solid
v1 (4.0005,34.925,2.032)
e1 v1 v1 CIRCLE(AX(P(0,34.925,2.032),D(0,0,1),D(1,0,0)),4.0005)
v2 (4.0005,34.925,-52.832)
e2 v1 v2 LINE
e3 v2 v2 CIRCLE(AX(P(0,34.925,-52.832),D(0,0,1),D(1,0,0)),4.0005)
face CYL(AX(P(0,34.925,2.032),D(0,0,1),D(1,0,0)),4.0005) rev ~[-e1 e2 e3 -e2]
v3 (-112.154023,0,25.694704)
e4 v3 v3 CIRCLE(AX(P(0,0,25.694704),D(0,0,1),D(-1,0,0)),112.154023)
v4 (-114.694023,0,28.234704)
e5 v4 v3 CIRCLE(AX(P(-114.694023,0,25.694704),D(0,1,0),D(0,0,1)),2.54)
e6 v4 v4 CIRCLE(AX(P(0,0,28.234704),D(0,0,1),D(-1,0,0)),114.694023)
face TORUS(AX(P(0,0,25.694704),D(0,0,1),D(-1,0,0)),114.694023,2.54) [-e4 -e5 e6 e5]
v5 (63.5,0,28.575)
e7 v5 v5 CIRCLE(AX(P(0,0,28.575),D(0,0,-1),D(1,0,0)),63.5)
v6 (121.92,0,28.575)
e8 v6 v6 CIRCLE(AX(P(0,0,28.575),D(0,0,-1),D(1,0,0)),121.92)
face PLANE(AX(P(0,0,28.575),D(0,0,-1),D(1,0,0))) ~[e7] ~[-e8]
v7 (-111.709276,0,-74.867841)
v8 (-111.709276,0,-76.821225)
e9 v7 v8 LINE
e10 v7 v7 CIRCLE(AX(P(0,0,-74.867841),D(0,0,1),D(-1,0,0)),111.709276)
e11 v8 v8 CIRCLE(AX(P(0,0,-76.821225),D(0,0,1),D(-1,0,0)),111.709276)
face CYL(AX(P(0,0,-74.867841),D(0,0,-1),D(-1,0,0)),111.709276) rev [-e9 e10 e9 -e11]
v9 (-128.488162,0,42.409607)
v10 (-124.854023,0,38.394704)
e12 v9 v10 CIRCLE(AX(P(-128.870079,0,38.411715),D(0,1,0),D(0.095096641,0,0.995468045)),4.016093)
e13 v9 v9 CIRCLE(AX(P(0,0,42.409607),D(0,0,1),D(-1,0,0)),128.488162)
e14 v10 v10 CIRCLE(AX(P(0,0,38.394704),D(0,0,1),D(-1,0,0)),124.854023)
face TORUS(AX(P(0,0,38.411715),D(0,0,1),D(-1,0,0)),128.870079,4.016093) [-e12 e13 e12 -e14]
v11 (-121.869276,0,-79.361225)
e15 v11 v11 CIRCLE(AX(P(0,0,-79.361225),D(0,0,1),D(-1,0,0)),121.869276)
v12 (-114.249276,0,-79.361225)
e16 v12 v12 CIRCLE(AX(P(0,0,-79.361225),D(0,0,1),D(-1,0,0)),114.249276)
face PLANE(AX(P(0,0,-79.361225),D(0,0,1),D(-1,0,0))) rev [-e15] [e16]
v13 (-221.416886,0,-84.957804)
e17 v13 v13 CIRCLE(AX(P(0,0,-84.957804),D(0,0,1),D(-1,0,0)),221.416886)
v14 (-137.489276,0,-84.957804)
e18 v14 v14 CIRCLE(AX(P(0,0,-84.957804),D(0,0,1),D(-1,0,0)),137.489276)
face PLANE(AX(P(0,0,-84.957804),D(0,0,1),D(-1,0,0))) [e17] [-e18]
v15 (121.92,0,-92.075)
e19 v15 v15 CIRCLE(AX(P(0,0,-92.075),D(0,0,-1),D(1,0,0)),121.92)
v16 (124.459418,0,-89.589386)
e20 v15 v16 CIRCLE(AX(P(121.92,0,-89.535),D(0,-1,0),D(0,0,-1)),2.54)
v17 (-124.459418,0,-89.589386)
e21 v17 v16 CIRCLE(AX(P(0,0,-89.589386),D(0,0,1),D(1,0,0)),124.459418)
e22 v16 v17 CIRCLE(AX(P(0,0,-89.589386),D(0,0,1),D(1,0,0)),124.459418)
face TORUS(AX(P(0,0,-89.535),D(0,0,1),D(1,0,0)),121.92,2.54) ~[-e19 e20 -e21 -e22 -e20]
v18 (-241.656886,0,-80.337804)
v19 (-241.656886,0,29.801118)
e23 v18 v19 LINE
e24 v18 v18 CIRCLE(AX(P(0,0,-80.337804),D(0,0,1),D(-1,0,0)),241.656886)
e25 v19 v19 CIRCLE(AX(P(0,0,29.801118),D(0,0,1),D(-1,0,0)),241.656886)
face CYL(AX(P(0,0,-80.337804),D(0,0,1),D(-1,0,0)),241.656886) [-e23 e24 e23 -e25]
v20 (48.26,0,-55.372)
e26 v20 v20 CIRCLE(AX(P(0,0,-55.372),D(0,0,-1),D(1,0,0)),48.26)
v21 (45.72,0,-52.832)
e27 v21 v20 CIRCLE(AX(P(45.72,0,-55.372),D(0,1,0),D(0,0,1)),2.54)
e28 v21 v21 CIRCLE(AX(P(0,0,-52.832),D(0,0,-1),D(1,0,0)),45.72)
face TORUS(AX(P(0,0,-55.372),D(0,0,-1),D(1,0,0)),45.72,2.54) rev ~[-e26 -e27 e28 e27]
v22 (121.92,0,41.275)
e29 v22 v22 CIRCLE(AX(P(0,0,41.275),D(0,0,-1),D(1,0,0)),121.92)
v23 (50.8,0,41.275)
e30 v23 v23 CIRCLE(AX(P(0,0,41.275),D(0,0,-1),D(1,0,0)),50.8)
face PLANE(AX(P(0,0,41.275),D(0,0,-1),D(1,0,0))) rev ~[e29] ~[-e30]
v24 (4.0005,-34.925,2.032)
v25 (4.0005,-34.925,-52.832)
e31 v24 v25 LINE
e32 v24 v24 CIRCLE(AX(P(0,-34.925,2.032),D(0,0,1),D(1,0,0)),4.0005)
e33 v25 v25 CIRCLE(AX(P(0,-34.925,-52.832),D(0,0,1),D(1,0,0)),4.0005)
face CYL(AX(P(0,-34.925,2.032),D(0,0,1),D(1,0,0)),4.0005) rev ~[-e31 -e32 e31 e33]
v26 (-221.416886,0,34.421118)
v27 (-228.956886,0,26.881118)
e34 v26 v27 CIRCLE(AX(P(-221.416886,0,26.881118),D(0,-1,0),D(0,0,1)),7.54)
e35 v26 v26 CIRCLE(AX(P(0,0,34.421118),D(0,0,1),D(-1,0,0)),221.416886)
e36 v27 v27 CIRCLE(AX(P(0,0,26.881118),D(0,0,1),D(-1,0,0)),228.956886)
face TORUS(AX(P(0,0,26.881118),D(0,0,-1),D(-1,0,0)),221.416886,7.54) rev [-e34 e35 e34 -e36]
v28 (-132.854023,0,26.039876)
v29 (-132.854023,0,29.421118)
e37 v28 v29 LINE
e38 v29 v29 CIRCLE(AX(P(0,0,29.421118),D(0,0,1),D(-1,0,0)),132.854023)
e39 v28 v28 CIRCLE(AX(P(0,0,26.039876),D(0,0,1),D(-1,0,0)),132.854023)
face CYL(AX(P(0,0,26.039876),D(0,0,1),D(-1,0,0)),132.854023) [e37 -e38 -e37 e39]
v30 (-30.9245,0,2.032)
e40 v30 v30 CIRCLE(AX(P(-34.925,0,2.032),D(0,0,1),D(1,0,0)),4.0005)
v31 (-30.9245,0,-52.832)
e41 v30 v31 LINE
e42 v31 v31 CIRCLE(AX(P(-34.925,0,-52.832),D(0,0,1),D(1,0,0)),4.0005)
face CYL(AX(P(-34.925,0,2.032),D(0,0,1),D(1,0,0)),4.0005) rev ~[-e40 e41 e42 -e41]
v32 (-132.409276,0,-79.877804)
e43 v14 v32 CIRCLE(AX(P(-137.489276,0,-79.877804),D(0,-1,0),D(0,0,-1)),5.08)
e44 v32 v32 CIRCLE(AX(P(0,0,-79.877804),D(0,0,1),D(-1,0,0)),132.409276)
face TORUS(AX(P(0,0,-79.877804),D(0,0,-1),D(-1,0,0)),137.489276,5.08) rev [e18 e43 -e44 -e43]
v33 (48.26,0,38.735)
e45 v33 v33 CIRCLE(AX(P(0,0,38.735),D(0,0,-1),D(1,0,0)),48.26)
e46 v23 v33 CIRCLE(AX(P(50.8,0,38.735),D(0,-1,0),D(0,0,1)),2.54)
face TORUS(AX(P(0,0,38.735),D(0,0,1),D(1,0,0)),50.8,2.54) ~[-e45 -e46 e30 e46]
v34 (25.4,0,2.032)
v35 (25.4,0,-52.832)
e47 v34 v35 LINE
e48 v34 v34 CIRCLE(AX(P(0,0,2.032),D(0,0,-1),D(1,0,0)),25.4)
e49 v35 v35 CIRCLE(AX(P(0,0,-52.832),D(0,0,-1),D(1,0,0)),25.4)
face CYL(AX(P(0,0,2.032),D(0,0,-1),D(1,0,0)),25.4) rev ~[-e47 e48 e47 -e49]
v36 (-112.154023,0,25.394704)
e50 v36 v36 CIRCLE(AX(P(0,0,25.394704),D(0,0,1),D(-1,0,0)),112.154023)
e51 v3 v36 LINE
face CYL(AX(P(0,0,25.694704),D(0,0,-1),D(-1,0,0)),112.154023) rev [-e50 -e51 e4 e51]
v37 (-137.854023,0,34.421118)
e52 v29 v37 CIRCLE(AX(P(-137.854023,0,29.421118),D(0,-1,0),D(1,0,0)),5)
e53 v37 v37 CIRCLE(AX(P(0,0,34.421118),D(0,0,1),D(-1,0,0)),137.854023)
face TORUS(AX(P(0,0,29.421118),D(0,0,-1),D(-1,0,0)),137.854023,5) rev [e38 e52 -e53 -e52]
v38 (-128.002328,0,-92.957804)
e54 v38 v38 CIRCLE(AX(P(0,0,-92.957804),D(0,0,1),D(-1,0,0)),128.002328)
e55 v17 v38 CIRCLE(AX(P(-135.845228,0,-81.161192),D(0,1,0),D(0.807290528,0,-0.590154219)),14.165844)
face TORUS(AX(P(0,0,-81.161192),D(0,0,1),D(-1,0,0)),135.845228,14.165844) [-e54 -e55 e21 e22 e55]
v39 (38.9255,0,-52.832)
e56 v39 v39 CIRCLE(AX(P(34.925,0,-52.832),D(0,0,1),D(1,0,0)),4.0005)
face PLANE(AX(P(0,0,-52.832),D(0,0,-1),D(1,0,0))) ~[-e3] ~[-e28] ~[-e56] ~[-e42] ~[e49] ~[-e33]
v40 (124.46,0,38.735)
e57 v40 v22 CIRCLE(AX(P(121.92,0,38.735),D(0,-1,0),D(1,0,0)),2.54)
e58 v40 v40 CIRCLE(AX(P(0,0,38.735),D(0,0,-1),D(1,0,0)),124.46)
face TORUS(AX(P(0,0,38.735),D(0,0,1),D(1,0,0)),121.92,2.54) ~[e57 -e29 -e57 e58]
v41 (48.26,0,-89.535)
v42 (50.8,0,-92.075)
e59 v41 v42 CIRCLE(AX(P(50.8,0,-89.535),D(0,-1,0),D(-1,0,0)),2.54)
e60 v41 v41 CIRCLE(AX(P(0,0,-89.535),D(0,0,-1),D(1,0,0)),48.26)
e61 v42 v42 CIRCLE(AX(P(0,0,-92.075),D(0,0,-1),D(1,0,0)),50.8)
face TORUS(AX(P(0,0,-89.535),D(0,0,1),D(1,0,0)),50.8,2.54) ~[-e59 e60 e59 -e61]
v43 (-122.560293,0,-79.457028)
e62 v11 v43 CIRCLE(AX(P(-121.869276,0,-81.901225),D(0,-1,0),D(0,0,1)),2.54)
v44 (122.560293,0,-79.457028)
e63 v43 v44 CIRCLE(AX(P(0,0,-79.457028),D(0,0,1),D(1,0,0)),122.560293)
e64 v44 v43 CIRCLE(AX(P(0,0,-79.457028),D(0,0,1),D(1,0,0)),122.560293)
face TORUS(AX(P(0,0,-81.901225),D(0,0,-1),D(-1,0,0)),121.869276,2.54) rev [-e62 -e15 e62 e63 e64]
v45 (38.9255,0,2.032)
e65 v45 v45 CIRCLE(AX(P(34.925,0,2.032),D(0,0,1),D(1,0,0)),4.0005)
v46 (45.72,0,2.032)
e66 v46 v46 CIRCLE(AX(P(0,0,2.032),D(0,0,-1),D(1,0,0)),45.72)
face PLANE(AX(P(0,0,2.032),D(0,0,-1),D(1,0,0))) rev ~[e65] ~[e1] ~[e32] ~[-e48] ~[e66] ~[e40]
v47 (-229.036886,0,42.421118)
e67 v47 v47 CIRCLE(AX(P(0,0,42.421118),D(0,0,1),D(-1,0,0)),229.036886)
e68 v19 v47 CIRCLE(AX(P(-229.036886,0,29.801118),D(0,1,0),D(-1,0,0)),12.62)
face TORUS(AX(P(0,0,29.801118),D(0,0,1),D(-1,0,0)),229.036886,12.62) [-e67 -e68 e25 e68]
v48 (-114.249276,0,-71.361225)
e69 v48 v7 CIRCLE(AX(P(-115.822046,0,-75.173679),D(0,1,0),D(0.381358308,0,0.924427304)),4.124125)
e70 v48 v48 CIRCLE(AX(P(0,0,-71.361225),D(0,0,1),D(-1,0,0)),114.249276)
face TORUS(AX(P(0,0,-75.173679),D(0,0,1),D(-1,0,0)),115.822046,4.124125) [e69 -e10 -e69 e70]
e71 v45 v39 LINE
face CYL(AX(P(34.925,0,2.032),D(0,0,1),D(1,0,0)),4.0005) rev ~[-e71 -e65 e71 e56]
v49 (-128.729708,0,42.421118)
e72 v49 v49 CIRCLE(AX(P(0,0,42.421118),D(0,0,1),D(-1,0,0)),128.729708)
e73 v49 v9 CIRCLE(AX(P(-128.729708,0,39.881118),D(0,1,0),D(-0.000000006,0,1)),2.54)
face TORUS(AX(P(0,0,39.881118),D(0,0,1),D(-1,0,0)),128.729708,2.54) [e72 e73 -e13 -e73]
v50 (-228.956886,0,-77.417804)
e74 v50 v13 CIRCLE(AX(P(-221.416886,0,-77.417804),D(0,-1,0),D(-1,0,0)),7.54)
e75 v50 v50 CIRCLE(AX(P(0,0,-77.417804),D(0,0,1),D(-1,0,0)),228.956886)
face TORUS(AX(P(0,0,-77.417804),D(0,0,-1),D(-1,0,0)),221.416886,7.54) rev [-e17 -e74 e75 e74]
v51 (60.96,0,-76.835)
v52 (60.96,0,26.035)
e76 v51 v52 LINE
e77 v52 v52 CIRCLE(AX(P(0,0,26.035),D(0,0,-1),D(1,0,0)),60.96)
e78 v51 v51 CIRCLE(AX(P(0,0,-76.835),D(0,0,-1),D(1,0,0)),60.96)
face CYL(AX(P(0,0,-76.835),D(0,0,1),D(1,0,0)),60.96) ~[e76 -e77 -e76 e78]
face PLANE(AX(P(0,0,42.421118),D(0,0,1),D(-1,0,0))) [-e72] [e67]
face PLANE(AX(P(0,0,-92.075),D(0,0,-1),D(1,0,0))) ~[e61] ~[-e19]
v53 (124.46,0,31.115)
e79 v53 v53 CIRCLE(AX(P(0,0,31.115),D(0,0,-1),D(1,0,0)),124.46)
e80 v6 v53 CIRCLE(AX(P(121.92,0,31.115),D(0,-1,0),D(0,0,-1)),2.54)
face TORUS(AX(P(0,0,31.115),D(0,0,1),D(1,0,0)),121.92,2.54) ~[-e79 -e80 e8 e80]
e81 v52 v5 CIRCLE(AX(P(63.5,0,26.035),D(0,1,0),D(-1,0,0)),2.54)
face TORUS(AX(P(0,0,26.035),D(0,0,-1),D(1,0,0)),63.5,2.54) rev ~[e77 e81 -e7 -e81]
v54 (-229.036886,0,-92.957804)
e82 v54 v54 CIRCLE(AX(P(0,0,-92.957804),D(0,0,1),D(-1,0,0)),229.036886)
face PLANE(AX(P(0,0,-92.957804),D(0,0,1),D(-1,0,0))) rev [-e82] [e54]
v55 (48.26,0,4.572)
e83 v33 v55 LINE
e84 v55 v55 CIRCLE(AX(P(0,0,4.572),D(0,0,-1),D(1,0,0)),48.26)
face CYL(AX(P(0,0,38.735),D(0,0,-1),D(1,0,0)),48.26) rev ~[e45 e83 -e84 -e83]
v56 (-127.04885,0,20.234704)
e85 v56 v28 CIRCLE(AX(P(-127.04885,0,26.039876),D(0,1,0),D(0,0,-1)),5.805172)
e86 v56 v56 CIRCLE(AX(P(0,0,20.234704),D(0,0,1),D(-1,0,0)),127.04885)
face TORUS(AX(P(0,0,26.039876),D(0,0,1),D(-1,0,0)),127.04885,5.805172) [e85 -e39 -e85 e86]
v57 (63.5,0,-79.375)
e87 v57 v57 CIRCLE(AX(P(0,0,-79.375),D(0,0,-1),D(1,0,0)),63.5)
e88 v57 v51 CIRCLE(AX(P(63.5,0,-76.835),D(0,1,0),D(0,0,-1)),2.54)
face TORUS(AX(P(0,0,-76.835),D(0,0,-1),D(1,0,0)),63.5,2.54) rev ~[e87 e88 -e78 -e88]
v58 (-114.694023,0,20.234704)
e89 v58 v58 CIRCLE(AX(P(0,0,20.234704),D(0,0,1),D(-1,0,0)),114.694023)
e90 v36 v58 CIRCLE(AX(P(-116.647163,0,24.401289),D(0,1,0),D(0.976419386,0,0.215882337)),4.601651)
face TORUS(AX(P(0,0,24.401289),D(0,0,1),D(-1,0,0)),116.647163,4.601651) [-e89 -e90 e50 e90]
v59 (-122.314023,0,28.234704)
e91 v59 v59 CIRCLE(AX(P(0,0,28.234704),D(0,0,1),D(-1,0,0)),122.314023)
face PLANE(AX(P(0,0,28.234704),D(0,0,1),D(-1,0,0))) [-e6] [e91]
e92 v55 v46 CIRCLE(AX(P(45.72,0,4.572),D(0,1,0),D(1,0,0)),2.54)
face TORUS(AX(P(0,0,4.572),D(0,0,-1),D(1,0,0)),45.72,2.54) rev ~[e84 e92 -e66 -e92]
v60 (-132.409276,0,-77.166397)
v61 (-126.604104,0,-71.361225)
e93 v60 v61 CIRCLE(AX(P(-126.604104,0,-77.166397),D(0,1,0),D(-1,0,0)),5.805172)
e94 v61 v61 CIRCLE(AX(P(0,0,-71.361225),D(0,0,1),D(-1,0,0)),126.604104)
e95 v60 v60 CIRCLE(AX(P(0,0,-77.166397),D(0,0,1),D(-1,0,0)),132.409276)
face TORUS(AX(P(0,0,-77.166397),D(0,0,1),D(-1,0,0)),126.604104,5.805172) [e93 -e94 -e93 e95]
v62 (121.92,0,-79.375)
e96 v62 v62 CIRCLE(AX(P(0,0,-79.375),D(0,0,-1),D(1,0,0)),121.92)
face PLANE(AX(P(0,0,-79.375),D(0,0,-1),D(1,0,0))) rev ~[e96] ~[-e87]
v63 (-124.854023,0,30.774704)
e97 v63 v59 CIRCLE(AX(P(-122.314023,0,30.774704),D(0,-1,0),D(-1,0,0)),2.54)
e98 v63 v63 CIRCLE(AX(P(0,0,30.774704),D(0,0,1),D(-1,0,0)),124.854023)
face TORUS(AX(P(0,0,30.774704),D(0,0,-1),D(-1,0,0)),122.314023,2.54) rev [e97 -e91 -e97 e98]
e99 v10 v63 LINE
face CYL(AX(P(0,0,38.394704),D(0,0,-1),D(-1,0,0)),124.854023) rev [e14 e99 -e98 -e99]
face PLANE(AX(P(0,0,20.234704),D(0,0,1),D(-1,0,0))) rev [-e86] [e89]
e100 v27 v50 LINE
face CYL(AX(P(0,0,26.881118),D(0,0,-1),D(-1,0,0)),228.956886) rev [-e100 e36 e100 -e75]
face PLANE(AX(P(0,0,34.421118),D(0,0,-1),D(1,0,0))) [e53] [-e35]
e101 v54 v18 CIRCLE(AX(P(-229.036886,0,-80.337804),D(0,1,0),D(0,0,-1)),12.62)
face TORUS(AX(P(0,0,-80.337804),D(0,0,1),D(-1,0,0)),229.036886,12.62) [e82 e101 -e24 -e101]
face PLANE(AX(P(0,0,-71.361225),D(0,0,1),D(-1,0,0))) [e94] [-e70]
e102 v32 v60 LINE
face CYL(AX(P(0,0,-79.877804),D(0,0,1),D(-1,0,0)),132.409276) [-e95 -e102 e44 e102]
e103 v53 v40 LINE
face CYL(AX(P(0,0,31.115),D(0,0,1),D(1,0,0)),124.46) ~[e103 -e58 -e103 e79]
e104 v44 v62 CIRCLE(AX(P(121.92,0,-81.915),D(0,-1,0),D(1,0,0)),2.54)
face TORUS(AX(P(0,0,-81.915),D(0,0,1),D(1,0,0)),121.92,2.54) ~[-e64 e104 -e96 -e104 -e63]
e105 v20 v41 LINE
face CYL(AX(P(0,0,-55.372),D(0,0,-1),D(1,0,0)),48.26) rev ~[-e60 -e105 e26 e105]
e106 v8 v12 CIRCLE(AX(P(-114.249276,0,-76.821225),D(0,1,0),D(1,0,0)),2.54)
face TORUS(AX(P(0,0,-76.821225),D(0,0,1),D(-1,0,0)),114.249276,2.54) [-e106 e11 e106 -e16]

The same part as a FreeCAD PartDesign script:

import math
import FreeCAD as App
import Part
import Sketcher
Q = App.Units.Quantity

doc = App.newDocument("Part")
params = doc.addObject("Spreadsheet::Sheet", "Params")
for row, (alias, value) in enumerate([
    ("sketch1_radius", "0.1 in"),
    ("sketch1_width", "0.8 in"),
    ("sketch1_width2", "2.8 in"),
    ("sketch1_width3", "2.3 in"),
    ("sketch1_height", "0.3 in"),
    ("revolution_angle", "360 deg"),
    ("sketch2_diameter", "0.315 in"),
    ("sketch3_radius", "0.1 in"),
    ("sketch3_radius2", "0.2 in"),
    ("sketch3_width", "0.3 in"),
    ("revolution2_angle", "360 deg"),
], start=1):
    params.set(f"A{row}", alias)
    params.set(f"B{row}", "=" + value)
    params.setAlias(f"B{row}", alias)

body = doc.addObject("PartDesign::Body", "Body")

sketch1 = doc.addObject("Sketcher::SketchObject", "Sketch")
body.addObject(sketch1)
sketch1.AttachmentSupport = (doc.YZ_Plane, [""])
sketch1.MapMode = "FlatFace"
sketch1.addGeometry(Part.LineSegment(App.Vector(25.4, 2, 0), App.Vector(25.4, -52.8, 0)), False)
sketch1.addGeometry(Part.LineSegment(App.Vector(25.4, -52.8, 0), App.Vector(45.7, -52.8, 0)), False)
sketch1.addGeometry(Part.ArcOfCircle(Part.Circle(App.Vector(45.7, -55.4, 0), App.Vector(0, 0, 1), 2.5), math.radians(0), math.radians(90)), False)
sketch1.addGeometry(Part.LineSegment(App.Vector(48.3, -55.4, 0), App.Vector(48.3, -89.5, 0)), False)
sketch1.addGeometry(Part.ArcOfCircle(Part.Circle(App.Vector(50.8, -89.5, 0), App.Vector(0, 0, 1), 2.5), math.radians(-180), math.radians(-90)), False)
sketch1.addGeometry(Part.LineSegment(App.Vector(50.8, -92.1, 0), App.Vector(121.9, -92.1, 0)), False)
sketch1.addGeometry(Part.ArcOfCircle(Part.Circle(App.Vector(121.9, -89.5, 0), App.Vector(0, 0, 1), 2.5), math.radians(-90), math.radians(0)), False)
sketch1.addGeometry(Part.LineSegment(App.Vector(124.5, -89.5, 0), App.Vector(124.5, -81.9, 0)), False)
sketch1.addGeometry(Part.ArcOfCircle(Part.Circle(App.Vector(121.9, -81.9, 0), App.Vector(0, 0, 1), 2.5), math.radians(0), math.radians(90)), False)
sketch1.addGeometry(Part.LineSegment(App.Vector(121.9, -79.4, 0), App.Vector(63.5, -79.4, 0)), False)
sketch1.addGeometry(Part.ArcOfCircle(Part.Circle(App.Vector(63.5, -76.8, 0), App.Vector(0, 0, 1), 2.5), math.radians(-180), math.radians(-90)), False)
sketch1.addGeometry(Part.LineSegment(App.Vector(61, -76.8, 0), App.Vector(61, 26, 0)), False)
sketch1.addGeometry(Part.ArcOfCircle(Part.Circle(App.Vector(63.5, 26, 0), App.Vector(0, 0, 1), 2.5), math.radians(90), math.radians(180)), False)
sketch1.addGeometry(Part.LineSegment(App.Vector(63.5, 28.6, 0), App.Vector(121.9, 28.6, 0)), False)
sketch1.addGeometry(Part.ArcOfCircle(Part.Circle(App.Vector(121.9, 31.1, 0), App.Vector(0, 0, 1), 2.5), math.radians(-90), math.radians(0)), False)
sketch1.addGeometry(Part.LineSegment(App.Vector(124.5, 31.1, 0), App.Vector(124.5, 38.7, 0)), False)
sketch1.addGeometry(Part.ArcOfCircle(Part.Circle(App.Vector(121.9, 38.7, 0), App.Vector(0, 0, 1), 2.5), math.radians(0), math.radians(90)), False)
sketch1.addGeometry(Part.LineSegment(App.Vector(121.9, 41.3, 0), App.Vector(50.8, 41.3, 0)), False)
sketch1.addGeometry(Part.ArcOfCircle(Part.Circle(App.Vector(50.8, 38.7, 0), App.Vector(0, 0, 1), 2.5), math.radians(90), math.radians(180)), False)
sketch1.addGeometry(Part.LineSegment(App.Vector(48.3, 38.7, 0), App.Vector(48.3, 4.6, 0)), False)
sketch1.addGeometry(Part.ArcOfCircle(Part.Circle(App.Vector(45.7, 4.6, 0), App.Vector(0, 0, 1), 2.5), math.radians(-90), math.radians(0)), False)
sketch1.addGeometry(Part.LineSegment(App.Vector(45.7, 2, 0), App.Vector(25.4, 2, 0)), False)
sketch1.addConstraint(Sketcher.Constraint("Coincident", 0, 2, 1, 1))
sketch1.addConstraint(Sketcher.Constraint("Tangent", 1, 2, 2, 2))
sketch1.addConstraint(Sketcher.Constraint("Tangent", 2, 1, 3, 1))
sketch1.addConstraint(Sketcher.Constraint("Tangent", 3, 2, 4, 1))
sketch1.addConstraint(Sketcher.Constraint("Tangent", 4, 2, 5, 1))
sketch1.addConstraint(Sketcher.Constraint("Tangent", 5, 2, 6, 1))
sketch1.addConstraint(Sketcher.Constraint("Tangent", 6, 2, 7, 1))
sketch1.addConstraint(Sketcher.Constraint("Tangent", 7, 2, 8, 1))
sketch1.addConstraint(Sketcher.Constraint("Tangent", 8, 2, 9, 1))
sketch1.addConstraint(Sketcher.Constraint("Tangent", 9, 2, 10, 2))
sketch1.addConstraint(Sketcher.Constraint("Tangent", 10, 1, 11, 1))
sketch1.addConstraint(Sketcher.Constraint("Tangent", 11, 2, 12, 2))
sketch1.addConstraint(Sketcher.Constraint("Tangent", 12, 1, 13, 1))
sketch1.addConstraint(Sketcher.Constraint("Tangent", 13, 2, 14, 1))
sketch1.addConstraint(Sketcher.Constraint("Tangent", 14, 2, 15, 1))
sketch1.addConstraint(Sketcher.Constraint("Tangent", 15, 2, 16, 1))
sketch1.addConstraint(Sketcher.Constraint("Tangent", 16, 2, 17, 1))
sketch1.addConstraint(Sketcher.Constraint("Tangent", 17, 2, 18, 1))
sketch1.addConstraint(Sketcher.Constraint("Tangent", 18, 2, 19, 1))
sketch1.addConstraint(Sketcher.Constraint("Tangent", 19, 2, 20, 2))
sketch1.addConstraint(Sketcher.Constraint("Tangent", 20, 1, 21, 1))
sketch1.addConstraint(Sketcher.Constraint("Coincident", 21, 2, 0, 1))
sketch1.addConstraint(Sketcher.Constraint("Vertical", 0))
sketch1.addConstraint(Sketcher.Constraint("Horizontal", 1))
sketch1.addConstraint(Sketcher.Constraint("Vertical", 3))
sketch1.addConstraint(Sketcher.Constraint("Horizontal", 5))
sketch1.addConstraint(Sketcher.Constraint("Vertical", 7))
sketch1.addConstraint(Sketcher.Constraint("Horizontal", 9))
sketch1.addConstraint(Sketcher.Constraint("Vertical", 11))
sketch1.addConstraint(Sketcher.Constraint("Horizontal", 13))
sketch1.addConstraint(Sketcher.Constraint("Vertical", 15))
sketch1.addConstraint(Sketcher.Constraint("Horizontal", 17))
sketch1.addConstraint(Sketcher.Constraint("Vertical", 19))
sketch1.addConstraint(Sketcher.Constraint("Horizontal", 21))
sketch1.addConstraint(Sketcher.Constraint("Equal", 2, 4))
sketch1.addConstraint(Sketcher.Constraint("Equal", 4, 6))
sketch1.addConstraint(Sketcher.Constraint("Equal", 6, 8))
sketch1.addConstraint(Sketcher.Constraint("Equal", 8, 10))
sketch1.addConstraint(Sketcher.Constraint("Equal", 10, 12))
sketch1.addConstraint(Sketcher.Constraint("Equal", 12, 14))
sketch1.addConstraint(Sketcher.Constraint("Equal", 14, 16))
sketch1.addConstraint(Sketcher.Constraint("Equal", 16, 18))
sketch1.addConstraint(Sketcher.Constraint("Equal", 18, 20))
sketch1.addConstraint(Sketcher.Constraint("Vertical", 8, 3, 14, 3))
sketch1.addConstraint(Sketcher.Constraint("Vertical", 4, 3, 18, 3))
sketch1.addConstraint(Sketcher.Constraint("Equal", 7, 15))
sketch1.addConstraint(Sketcher.Constraint("Equal", 3, 19))
sketch1.addConstraint(Sketcher.Constraint("Radius", 2, Q("0.1 in")))
sketch1.addConstraint(Sketcher.Constraint("DistanceX", 1, 1, 1, 2, Q("0.8 in")))
sketch1.addConstraint(Sketcher.Constraint("DistanceX", 5, 1, 5, 2, Q("2.8 in")))
sketch1.addConstraint(Sketcher.Constraint("DistanceX", 9, 2, 9, 1, Q("2.3 in")))
sketch1.addConstraint(Sketcher.Constraint("DistanceY", 7, 1, 7, 2, Q("0.3 in")))
sketch1.addConstraint(Sketcher.Constraint("DistanceX", -1, 1, 4, 3, Q("2 in")))
sketch1.addConstraint(Sketcher.Constraint("DistanceY", 0, 2, 0, 1, Q("2.16 in")))
sketch1.addConstraint(Sketcher.Constraint("DistanceY", 11, 1, 11, 2, Q("4.05 in")))
sketch1.addConstraint(Sketcher.Constraint("DistanceY", 2, 3, -1, 1, Q("2.18 in")))
sketch1.setExpression("Constraints[47]", "Params.sketch1_radius")
sketch1.setExpression("Constraints[48]", "Params.sketch1_width")
sketch1.setExpression("Constraints[49]", "Params.sketch1_width2")
sketch1.setExpression("Constraints[50]", "Params.sketch1_width3")
sketch1.setExpression("Constraints[51]", "Params.sketch1_height")
revolution = doc.addObject("PartDesign::Revolution", "Revolution")
body.addObject(revolution)
revolution.Profile = sketch1
revolution.ReferenceAxis = (sketch1, ["V_Axis"])
revolution.setExpression("Angle", "Params.revolution_angle")

sketch2 = doc.addObject("Sketcher::SketchObject", "Sketch001")
body.addObject(sketch2)
sketch2.AttachmentSupport = (doc.XY_Plane, [""])
sketch2.MapMode = "FlatFace"
sketch2.AttachmentOffset = App.Placement(App.Vector(0, 0, 0.08 * 25.4), App.Rotation())
sketch2.addGeometry(Part.Circle(App.Vector(0, 34.9, 0), App.Vector(0, 0, 1), 4), False)
sketch2.addGeometry(Part.Circle(App.Vector(34.9, 0, 0), App.Vector(0, 0, 1), 4), False)
sketch2.addGeometry(Part.Circle(App.Vector(0, -34.9, 0), App.Vector(0, 0, 1), 4), False)
sketch2.addGeometry(Part.Circle(App.Vector(-34.9, 0, 0), App.Vector(0, 0, 1), 4), False)
sketch2.addConstraint(Sketcher.Constraint("Equal", 0, 1))
sketch2.addConstraint(Sketcher.Constraint("Equal", 1, 2))
sketch2.addConstraint(Sketcher.Constraint("Equal", 2, 3))
sketch2.addConstraint(Sketcher.Constraint("Symmetric", 0, 3, 2, 3, -1, 1))
sketch2.addConstraint(Sketcher.Constraint("Symmetric", 1, 3, 3, 3, -1, 1))
sketch2.addConstraint(Sketcher.Constraint("PointOnObject", 0, 3, -2))
sketch2.addConstraint(Sketcher.Constraint("PointOnObject", 1, 3, -1))
sketch2.addConstraint(Sketcher.Constraint("Diameter", 0, Q("0.315 in")))
sketch2.addConstraint(Sketcher.Constraint("DistanceY", 2, 3, 0, 3, Q("2.75 in")))
sketch2.addConstraint(Sketcher.Constraint("DistanceX", 3, 3, 1, 3, Q("2.75 in")))
sketch2.setExpression("Constraints[7]", "Params.sketch2_diameter")
pocket1 = doc.addObject("PartDesign::Pocket", "Pocket")
body.addObject(pocket1)
pocket1.Profile = sketch2
pocket1.Type = "ThroughAll"

sketch3 = doc.addObject("Sketcher::SketchObject", "Sketch002")
body.addObject(sketch3)
sketch3.AttachmentSupport = (doc.YZ_Plane, [""])
sketch3.MapMode = "FlatFace"
sketch3.addGeometry(Part.LineSegment(App.Vector(124.85, 38.39, 0), App.Vector(124.85, 30.77, 0)), False)
sketch3.addGeometry(Part.ArcOfCircle(Part.Circle(App.Vector(122.31, 30.77, 0), App.Vector(0, 0, 1), 2.54), math.radians(-90), math.radians(0)), False)
sketch3.addGeometry(Part.LineSegment(App.Vector(122.31, 28.23, 0), App.Vector(114.69, 28.23, 0)), False)
sketch3.addGeometry(Part.ArcOfCircle(Part.Circle(App.Vector(114.69, 25.69, 0), App.Vector(0, 0, 1), 2.54), math.radians(90), math.radians(180)), False)
sketch3.addGeometry(Part.LineSegment(App.Vector(112.15, 25.69, 0), App.Vector(112.15, 25.39, 0)), False)
sketch3.addGeometry(Part.ArcOfCircle(Part.Circle(App.Vector(116.65, 24.4, 0), App.Vector(0, 0, 1), 4.6), math.radians(168), math.radians(245)), False)
sketch3.addGeometry(Part.LineSegment(App.Vector(114.69, 20.23, 0), App.Vector(127.05, 20.23, 0)), False)
sketch3.addGeometry(Part.ArcOfCircle(Part.Circle(App.Vector(127.05, 26.04, 0), App.Vector(0, 0, 1), 5.81), math.radians(-90), math.radians(0)), False)
sketch3.addGeometry(Part.LineSegment(App.Vector(132.85, 26.04, 0), App.Vector(132.85, 29.42, 0)), False)
sketch3.addGeometry(Part.ArcOfCircle(Part.Circle(App.Vector(137.85, 29.42, 0), App.Vector(0, 0, 1), 5), math.radians(90), math.radians(180)), False)
sketch3.addGeometry(Part.LineSegment(App.Vector(137.85, 34.42, 0), App.Vector(221.42, 34.42, 0)), False)
sketch3.addGeometry(Part.ArcOfCircle(Part.Circle(App.Vector(221.42, 26.88, 0), App.Vector(0, 0, 1), 7.54), math.radians(0), math.radians(90)), False)
sketch3.addGeometry(Part.LineSegment(App.Vector(228.96, 26.88, 0), App.Vector(228.96, -77.42, 0)), False)
sketch3.addGeometry(Part.ArcOfCircle(Part.Circle(App.Vector(221.42, -77.42, 0), App.Vector(0, 0, 1), 7.54), math.radians(-90), math.radians(0)), False)
sketch3.addGeometry(Part.LineSegment(App.Vector(221.42, -84.96, 0), App.Vector(137.49, -84.96, 0)), False)
sketch3.addGeometry(Part.ArcOfCircle(Part.Circle(App.Vector(137.49, -79.88, 0), App.Vector(0, 0, 1), 5.08), math.radians(180), math.radians(270)), False)
sketch3.addGeometry(Part.LineSegment(App.Vector(132.41, -79.88, 0), App.Vector(132.41, -77.17, 0)), False)
sketch3.addGeometry(Part.ArcOfCircle(Part.Circle(App.Vector(126.6, -77.17, 0), App.Vector(0, 0, 1), 5.81), math.radians(0), math.radians(90)), False)
sketch3.addGeometry(Part.LineSegment(App.Vector(126.6, -71.36, 0), App.Vector(114.25, -71.36, 0)), False)
sketch3.addGeometry(Part.ArcOfCircle(Part.Circle(App.Vector(115.82, -75.17, 0), App.Vector(0, 0, 1), 4.12), math.radians(112), math.radians(176)), False)
sketch3.addGeometry(Part.LineSegment(App.Vector(111.71, -74.87, 0), App.Vector(111.71, -76.82, 0)), False)
sketch3.addGeometry(Part.ArcOfCircle(Part.Circle(App.Vector(114.25, -76.82, 0), App.Vector(0, 0, 1), 2.54), math.radians(-180), math.radians(-90)), False)
sketch3.addGeometry(Part.LineSegment(App.Vector(114.25, -79.36, 0), App.Vector(121.87, -79.36, 0)), False)
sketch3.addGeometry(Part.ArcOfCircle(Part.Circle(App.Vector(121.87, -81.9, 0), App.Vector(0, 0, 1), 2.54), math.radians(0), math.radians(90)), False)
sketch3.addGeometry(Part.LineSegment(App.Vector(124.41, -81.9, 0), App.Vector(124.41, -89.52, 0)), False)
sketch3.addGeometry(Part.ArcOfCircle(Part.Circle(App.Vector(135.85, -81.16, 0), App.Vector(0, 0, 1), 14.17), math.radians(-144), math.radians(-124)), False)
sketch3.addGeometry(Part.LineSegment(App.Vector(128, -92.96, 0), App.Vector(229.04, -92.96, 0)), False)
sketch3.addGeometry(Part.ArcOfCircle(Part.Circle(App.Vector(229.04, -80.34, 0), App.Vector(0, 0, 1), 12.62), math.radians(-90), math.radians(0)), False)
sketch3.addGeometry(Part.LineSegment(App.Vector(241.66, -80.34, 0), App.Vector(241.66, 29.8, 0)), False)
sketch3.addGeometry(Part.ArcOfCircle(Part.Circle(App.Vector(229.04, 29.8, 0), App.Vector(0, 0, 1), 12.62), math.radians(0), math.radians(90)), False)
sketch3.addGeometry(Part.LineSegment(App.Vector(229.04, 42.42, 0), App.Vector(128.73, 42.42, 0)), False)
sketch3.addGeometry(Part.ArcOfCircle(Part.Circle(App.Vector(128.73, 39.88, 0), App.Vector(0, 0, 1), 2.54), math.radians(90), math.radians(95.46)), False)
sketch3.addGeometry(Part.ArcOfCircle(Part.Circle(App.Vector(128.87, 38.41, 0), App.Vector(0, 0, 1), 4.02), math.radians(95), math.radians(180)), False)
sketch3.addConstraint(Sketcher.Constraint("Tangent", 0, 2, 1, 2))
sketch3.addConstraint(Sketcher.Constraint("Tangent", 1, 1, 2, 1))
sketch3.addConstraint(Sketcher.Constraint("Tangent", 2, 2, 3, 1))
sketch3.addConstraint(Sketcher.Constraint("Tangent", 3, 2, 4, 1))
sketch3.addConstraint(Sketcher.Constraint("Coincident", 4, 2, 5, 1))
sketch3.addConstraint(Sketcher.Constraint("Coincident", 5, 2, 6, 1))
sketch3.addConstraint(Sketcher.Constraint("Tangent", 6, 2, 7, 1))
sketch3.addConstraint(Sketcher.Constraint("Tangent", 7, 2, 8, 1))
sketch3.addConstraint(Sketcher.Constraint("Tangent", 8, 2, 9, 2))
sketch3.addConstraint(Sketcher.Constraint("Tangent", 9, 1, 10, 1))
sketch3.addConstraint(Sketcher.Constraint("Tangent", 10, 2, 11, 2))
sketch3.addConstraint(Sketcher.Constraint("Tangent", 11, 1, 12, 1))
sketch3.addConstraint(Sketcher.Constraint("Tangent", 12, 2, 13, 2))
sketch3.addConstraint(Sketcher.Constraint("Tangent", 13, 1, 14, 1))
sketch3.addConstraint(Sketcher.Constraint("Tangent", 14, 2, 15, 2))
sketch3.addConstraint(Sketcher.Constraint("Tangent", 15, 1, 16, 1))
sketch3.addConstraint(Sketcher.Constraint("Tangent", 16, 2, 17, 1))
sketch3.addConstraint(Sketcher.Constraint("Tangent", 17, 2, 18, 1))
sketch3.addConstraint(Sketcher.Constraint("Coincident", 18, 2, 19, 1))
sketch3.addConstraint(Sketcher.Constraint("Coincident", 19, 2, 20, 1))
sketch3.addConstraint(Sketcher.Constraint("Tangent", 20, 2, 21, 1))
sketch3.addConstraint(Sketcher.Constraint("Tangent", 21, 2, 22, 1))
sketch3.addConstraint(Sketcher.Constraint("Tangent", 22, 2, 23, 2))
sketch3.addConstraint(Sketcher.Constraint("Tangent", 23, 1, 24, 1))
sketch3.addConstraint(Sketcher.Constraint("Coincident", 24, 2, 25, 1))
sketch3.addConstraint(Sketcher.Constraint("Coincident", 25, 2, 26, 1))
sketch3.addConstraint(Sketcher.Constraint("Tangent", 26, 2, 27, 1))
sketch3.addConstraint(Sketcher.Constraint("Tangent", 27, 2, 28, 1))
sketch3.addConstraint(Sketcher.Constraint("Tangent", 28, 2, 29, 1))
sketch3.addConstraint(Sketcher.Constraint("Tangent", 29, 2, 30, 1))
sketch3.addConstraint(Sketcher.Constraint("Tangent", 30, 2, 31, 1))
sketch3.addConstraint(Sketcher.Constraint("Tangent", 31, 2, 32, 1))
sketch3.addConstraint(Sketcher.Constraint("Coincident", 32, 2, 0, 1))
sketch3.addConstraint(Sketcher.Constraint("Vertical", 0))
sketch3.addConstraint(Sketcher.Constraint("Horizontal", 2))
sketch3.addConstraint(Sketcher.Constraint("Vertical", 4))
sketch3.addConstraint(Sketcher.Constraint("Horizontal", 6))
sketch3.addConstraint(Sketcher.Constraint("Vertical", 8))
sketch3.addConstraint(Sketcher.Constraint("Horizontal", 10))
sketch3.addConstraint(Sketcher.Constraint("Vertical", 12))
sketch3.addConstraint(Sketcher.Constraint("Horizontal", 14))
sketch3.addConstraint(Sketcher.Constraint("Vertical", 16))
sketch3.addConstraint(Sketcher.Constraint("Horizontal", 18))
sketch3.addConstraint(Sketcher.Constraint("Vertical", 20))
sketch3.addConstraint(Sketcher.Constraint("Horizontal", 22))
sketch3.addConstraint(Sketcher.Constraint("Vertical", 24))
sketch3.addConstraint(Sketcher.Constraint("Horizontal", 26))
sketch3.addConstraint(Sketcher.Constraint("Vertical", 28))
sketch3.addConstraint(Sketcher.Constraint("Horizontal", 30))
sketch3.addConstraint(Sketcher.Constraint("Equal", 1, 3))
sketch3.addConstraint(Sketcher.Constraint("Equal", 11, 13))
sketch3.addConstraint(Sketcher.Constraint("Equal", 7, 17))
sketch3.addConstraint(Sketcher.Constraint("Equal", 3, 21))
sketch3.addConstraint(Sketcher.Constraint("Equal", 21, 23))
sketch3.addConstraint(Sketcher.Constraint("Equal", 27, 29))
sketch3.addConstraint(Sketcher.Constraint("Equal", 23, 31))
sketch3.addConstraint(Sketcher.Constraint("Vertical", 2, 2, 5, 2))
sketch3.addConstraint(Sketcher.Constraint("Vertical", 21, 3, 18, 2))
sketch3.addConstraint(Sketcher.Constraint("Equal", 6, 18))
sketch3.addConstraint(Sketcher.Constraint("Equal", 2, 22))
sketch3.addConstraint(Sketcher.Constraint("Equal", 22, 0))
sketch3.addConstraint(Sketcher.Constraint("Equal", 0, 24))
sketch3.addConstraint(Sketcher.Constraint("Radius", 1, Q("0.1 in")))
sketch3.addConstraint(Sketcher.Constraint("Radius", 15, Q("0.2 in")))
sketch3.addConstraint(Sketcher.Constraint("DistanceX", 2, 2, 2, 1, Q("0.3 in")))
sketch3.addConstraint(Sketcher.Constraint("DistanceY", 11, 3, 9, 3, Q("0.1 in")))
sketch3.addConstraint(Sketcher.Constraint("DistanceX", 13, 3, 27, 3, Q("0.3 in")))
sketch3.addConstraint(Sketcher.Constraint("DistanceX", 12, 2, 27, 2, Q("0.5 in")))
sketch3.addConstraint(Sketcher.Constraint("Radius", 9, Q("5 mm")))
sketch3.addConstraint(Sketcher.Constraint("Radius", 5, Q("4.601651 mm")))
sketch3.addConstraint(Sketcher.Constraint("DistanceX", 19, 3, 7, 3, Q("0.4420002 in")))
sketch3.addConstraint(Sketcher.Constraint("DistanceY", 4, 2, 4, 1, Q("0.3 mm")))
sketch3.addConstraint(Sketcher.Constraint("Radius", 7, Q("5.805172 mm")))
sketch3.addConstraint(Sketcher.Constraint("Radius", 19, Q("4.124125 mm")))
sketch3.addConstraint(Sketcher.Constraint("Radius", 25, Q("14.165844 mm")))
sketch3.addConstraint(Sketcher.Constraint("Radius", 32, Q("4.016093 mm")))
sketch3.addConstraint(Sketcher.Constraint("DistanceX", 14, 2, 14, 1, Q("83.92761 mm")))
sketch3.addConstraint(Sketcher.Constraint("DistanceX", 26, 1, 26, 2, Q("101.034558 mm")))
sketch3.addConstraint(Sketcher.Constraint("DistanceX", 30, 2, 30, 1, Q("100.307178 mm")))
sketch3.addConstraint(Sketcher.Constraint("DistanceX", 1, 3, 9, 3, Q("15.54 mm")))
sketch3.addConstraint(Sketcher.Constraint("DistanceY", 17, 3, 3, 3, Q("102.861101 mm")))
sketch3.addConstraint(Sketcher.Constraint("DistanceY", 27, 3, 13, 3, Q("2.92 mm")))
sketch3.addConstraint(Sketcher.Constraint("DistanceY", 11, 3, 29, 3, Q("2.92 mm")))
sketch3.addConstraint(Sketcher.Constraint("DistanceY", 5, 2, 3, 3, Q("5.46 mm")))
sketch3.addConstraint(Sketcher.Constraint("DistanceY", 23, 3, 17, 2, Q("10.54 mm")))
sketch3.addConstraint(Sketcher.Constraint("DistanceX", 10, 1, 10, 2, Q("83.562863 mm")))
sketch3.addConstraint(Sketcher.Constraint("DistanceY", 8, 1, 8, 2, Q("3.381242 mm")))
sketch3.addConstraint(Sketcher.Constraint("DistanceY", 12, 2, 12, 1, Q("104.298922 mm")))
sketch3.addConstraint(Sketcher.Constraint("DistanceY", -1, 1, 5, 3, Q("24.401289 mm")))
sketch3.addConstraint(Sketcher.Constraint("DistanceX", -1, 1, 7, 3, Q("127.04885 mm")))
sketch3.setExpression("Constraints[62]", "Params.sketch3_radius")
sketch3.setExpression("Constraints[63]", "Params.sketch3_radius2")
sketch3.setExpression("Constraints[64]", "Params.sketch3_width")
revolution2 = doc.addObject("PartDesign::Revolution", "Revolution001")
body.addObject(revolution2)
revolution2.Profile = sketch3
revolution2.ReferenceAxis = (sketch3, ["V_Axis"])
revolution2.setExpression("Angle", "Params.revolution2_angle")

doc.recompute()
